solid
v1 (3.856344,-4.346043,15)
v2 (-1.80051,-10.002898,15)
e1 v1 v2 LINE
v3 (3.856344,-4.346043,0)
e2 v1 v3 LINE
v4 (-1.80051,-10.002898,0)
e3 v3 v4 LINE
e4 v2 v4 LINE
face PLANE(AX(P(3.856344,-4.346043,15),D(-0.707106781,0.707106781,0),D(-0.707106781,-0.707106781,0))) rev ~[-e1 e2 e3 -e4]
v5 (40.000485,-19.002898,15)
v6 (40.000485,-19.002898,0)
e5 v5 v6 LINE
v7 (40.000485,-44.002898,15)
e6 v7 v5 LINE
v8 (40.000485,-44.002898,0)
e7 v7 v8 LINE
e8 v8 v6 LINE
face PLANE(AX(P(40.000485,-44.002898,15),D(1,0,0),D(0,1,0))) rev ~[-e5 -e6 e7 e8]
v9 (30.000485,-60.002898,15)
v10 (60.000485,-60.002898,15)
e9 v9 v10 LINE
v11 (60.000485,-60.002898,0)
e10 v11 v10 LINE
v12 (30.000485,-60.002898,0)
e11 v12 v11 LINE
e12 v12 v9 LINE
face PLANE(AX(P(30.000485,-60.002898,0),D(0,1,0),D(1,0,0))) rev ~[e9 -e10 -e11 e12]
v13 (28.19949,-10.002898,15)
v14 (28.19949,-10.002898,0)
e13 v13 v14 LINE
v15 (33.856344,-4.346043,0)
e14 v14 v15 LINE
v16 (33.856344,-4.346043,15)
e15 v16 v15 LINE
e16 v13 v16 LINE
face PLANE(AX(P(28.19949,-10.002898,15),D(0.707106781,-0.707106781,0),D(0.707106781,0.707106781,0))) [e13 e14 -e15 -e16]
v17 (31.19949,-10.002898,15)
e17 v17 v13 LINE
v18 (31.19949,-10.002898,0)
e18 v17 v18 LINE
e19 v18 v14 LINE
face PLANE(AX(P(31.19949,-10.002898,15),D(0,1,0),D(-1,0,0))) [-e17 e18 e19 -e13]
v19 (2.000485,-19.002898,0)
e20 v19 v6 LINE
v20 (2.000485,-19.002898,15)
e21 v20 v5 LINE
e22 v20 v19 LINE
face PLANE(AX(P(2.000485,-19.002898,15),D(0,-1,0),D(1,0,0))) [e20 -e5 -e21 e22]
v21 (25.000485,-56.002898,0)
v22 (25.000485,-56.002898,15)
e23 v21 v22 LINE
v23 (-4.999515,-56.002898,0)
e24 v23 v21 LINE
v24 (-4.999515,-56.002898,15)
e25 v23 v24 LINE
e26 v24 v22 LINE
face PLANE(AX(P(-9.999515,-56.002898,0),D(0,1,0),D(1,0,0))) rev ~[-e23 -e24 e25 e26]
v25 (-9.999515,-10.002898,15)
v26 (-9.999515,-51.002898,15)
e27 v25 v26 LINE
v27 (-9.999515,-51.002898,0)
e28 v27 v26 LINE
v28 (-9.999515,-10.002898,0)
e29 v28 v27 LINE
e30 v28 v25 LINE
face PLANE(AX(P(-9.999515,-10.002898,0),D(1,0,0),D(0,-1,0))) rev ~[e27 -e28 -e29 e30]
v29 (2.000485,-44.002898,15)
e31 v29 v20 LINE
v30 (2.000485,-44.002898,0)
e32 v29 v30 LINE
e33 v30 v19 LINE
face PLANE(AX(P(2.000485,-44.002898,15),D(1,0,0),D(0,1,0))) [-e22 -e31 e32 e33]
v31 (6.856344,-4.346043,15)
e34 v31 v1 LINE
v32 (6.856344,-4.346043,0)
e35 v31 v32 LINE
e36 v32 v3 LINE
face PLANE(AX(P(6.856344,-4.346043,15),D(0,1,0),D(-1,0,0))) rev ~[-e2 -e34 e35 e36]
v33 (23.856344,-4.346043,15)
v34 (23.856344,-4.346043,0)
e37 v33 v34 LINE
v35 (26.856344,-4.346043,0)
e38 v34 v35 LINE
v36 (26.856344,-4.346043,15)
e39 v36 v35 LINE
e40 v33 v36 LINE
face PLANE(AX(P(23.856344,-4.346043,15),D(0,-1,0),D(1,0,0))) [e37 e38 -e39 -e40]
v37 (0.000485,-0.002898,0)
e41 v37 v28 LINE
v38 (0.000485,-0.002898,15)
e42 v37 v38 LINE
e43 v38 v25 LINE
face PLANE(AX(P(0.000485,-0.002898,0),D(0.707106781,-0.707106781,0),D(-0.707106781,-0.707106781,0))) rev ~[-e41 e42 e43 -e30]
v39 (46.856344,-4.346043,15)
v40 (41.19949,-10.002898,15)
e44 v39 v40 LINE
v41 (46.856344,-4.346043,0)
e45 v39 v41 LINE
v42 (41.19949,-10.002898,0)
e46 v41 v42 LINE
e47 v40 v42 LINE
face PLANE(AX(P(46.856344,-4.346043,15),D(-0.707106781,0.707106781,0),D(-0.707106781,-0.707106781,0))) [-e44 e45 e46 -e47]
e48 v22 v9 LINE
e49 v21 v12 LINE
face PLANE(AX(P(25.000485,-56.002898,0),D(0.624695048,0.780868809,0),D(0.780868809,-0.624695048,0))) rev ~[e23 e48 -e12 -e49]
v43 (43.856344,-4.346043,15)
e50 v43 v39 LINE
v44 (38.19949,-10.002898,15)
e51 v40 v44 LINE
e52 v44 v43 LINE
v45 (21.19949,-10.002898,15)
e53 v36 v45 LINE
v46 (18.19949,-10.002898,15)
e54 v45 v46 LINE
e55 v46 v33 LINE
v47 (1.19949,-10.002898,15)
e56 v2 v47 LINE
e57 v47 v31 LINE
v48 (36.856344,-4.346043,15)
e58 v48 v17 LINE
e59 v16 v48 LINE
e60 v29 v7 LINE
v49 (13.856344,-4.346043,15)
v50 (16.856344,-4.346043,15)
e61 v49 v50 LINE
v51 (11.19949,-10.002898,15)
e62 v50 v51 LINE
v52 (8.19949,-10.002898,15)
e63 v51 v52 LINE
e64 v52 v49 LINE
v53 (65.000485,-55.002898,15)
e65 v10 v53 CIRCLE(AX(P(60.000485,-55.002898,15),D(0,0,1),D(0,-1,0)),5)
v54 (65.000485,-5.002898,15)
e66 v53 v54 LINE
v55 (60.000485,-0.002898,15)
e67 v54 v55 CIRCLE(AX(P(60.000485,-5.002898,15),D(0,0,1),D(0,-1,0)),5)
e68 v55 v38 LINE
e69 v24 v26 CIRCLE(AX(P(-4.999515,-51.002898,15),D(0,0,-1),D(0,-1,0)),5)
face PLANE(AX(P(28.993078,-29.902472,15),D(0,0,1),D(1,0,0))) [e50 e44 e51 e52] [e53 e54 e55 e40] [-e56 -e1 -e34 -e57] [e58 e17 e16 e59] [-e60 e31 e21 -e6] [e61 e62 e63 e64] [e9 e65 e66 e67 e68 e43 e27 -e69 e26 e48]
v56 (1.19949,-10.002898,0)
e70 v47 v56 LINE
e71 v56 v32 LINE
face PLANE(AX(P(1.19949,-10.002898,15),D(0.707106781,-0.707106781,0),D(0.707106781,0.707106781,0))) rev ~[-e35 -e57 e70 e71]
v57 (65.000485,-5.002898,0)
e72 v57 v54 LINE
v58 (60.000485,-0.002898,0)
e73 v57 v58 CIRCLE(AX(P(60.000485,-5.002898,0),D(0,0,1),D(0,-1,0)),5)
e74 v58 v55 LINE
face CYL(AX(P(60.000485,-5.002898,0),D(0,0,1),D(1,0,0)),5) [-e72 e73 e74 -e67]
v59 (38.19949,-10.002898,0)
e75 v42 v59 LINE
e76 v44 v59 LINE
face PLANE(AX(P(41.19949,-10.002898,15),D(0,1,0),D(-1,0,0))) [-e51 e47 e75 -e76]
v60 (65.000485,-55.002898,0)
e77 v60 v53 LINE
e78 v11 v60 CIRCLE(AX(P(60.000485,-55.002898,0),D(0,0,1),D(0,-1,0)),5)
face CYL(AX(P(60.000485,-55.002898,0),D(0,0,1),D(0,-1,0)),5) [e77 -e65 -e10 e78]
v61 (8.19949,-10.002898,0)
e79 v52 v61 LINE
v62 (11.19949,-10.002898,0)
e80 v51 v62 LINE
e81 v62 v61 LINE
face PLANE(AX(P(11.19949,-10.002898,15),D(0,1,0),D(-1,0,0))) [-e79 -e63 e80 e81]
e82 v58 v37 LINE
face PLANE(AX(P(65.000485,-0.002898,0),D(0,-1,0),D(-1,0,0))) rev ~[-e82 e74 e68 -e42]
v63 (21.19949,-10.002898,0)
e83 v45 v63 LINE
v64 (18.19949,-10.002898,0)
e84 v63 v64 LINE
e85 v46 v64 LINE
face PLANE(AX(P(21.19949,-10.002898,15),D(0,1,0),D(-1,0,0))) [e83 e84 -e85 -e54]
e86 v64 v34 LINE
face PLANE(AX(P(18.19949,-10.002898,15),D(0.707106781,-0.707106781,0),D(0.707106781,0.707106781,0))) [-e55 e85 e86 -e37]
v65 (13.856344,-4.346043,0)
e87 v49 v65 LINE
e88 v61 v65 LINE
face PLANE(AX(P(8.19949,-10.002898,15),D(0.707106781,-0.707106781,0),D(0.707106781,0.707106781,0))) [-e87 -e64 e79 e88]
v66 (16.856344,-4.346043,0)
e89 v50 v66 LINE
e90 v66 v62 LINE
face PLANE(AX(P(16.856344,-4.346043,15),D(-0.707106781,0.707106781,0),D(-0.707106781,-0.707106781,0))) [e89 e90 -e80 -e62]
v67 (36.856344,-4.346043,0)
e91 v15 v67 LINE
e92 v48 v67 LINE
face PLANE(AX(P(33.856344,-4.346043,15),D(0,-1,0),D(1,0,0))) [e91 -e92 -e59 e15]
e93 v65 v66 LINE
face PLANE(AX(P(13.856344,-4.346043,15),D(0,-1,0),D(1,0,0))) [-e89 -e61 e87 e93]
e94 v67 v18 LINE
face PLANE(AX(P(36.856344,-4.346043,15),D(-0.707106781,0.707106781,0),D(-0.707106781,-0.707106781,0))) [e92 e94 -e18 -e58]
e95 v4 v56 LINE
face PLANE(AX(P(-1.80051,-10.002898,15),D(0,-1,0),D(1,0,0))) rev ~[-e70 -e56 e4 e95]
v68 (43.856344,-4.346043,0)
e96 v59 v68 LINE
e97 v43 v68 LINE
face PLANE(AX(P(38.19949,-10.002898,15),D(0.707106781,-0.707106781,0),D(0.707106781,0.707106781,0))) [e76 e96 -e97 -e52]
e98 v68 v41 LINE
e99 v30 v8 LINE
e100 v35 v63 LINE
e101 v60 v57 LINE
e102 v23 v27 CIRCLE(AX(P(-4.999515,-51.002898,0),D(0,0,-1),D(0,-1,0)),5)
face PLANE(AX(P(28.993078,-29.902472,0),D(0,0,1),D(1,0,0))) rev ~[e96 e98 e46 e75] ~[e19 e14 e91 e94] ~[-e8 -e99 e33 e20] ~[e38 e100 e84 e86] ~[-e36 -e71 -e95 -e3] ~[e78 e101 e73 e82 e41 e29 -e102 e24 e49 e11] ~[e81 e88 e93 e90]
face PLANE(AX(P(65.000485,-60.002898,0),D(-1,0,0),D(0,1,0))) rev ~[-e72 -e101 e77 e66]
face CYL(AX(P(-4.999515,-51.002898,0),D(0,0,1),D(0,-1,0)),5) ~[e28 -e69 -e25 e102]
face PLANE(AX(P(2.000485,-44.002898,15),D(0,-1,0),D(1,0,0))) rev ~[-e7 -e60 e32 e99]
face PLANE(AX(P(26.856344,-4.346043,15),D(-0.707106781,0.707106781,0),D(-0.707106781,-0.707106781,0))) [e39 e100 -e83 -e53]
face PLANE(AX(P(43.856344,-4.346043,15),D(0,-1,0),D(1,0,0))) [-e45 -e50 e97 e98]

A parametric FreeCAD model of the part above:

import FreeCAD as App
import Part
import Sketcher

V = App.Vector
Q = App.Units.Quantity


def edges_at(feature, points):
    """Names of the edges that pass closest to the given points."""
    edges = feature.Shape.Edges
    near = lambda p: min(range(len(edges)), key=lambda i: edges[i].distToShape(Part.Vertex(*p))[0])
    return sorted({f"Edge{near(p) + 1}" for p in points})


def add_polygon(sketch, points):
    """Adds a closed chain of lines whose ends are joined by coincident constraints."""
    first, n = sketch.GeometryCount, len(points)
    for a, b in zip(points, points[1:] + points[:1]):
        sketch.addGeometry(Part.LineSegment(App.Vector(*a, 0), App.Vector(*b, 0)), False)
    for i in range(n):
        sketch.addConstraint(Sketcher.Constraint("Coincident", first + i, 2, first + (i + 1) % n, 1))

doc = App.newDocument("Part")
body = doc.addObject("PartDesign::Body", "Body")

sketch1 = body.newObject("Sketcher::SketchObject", "Sketch")
sketch1.AttachmentSupport = (doc.getObject("XY_Plane"), [""])
sketch1.MapMode = "FlatFace"
add_polygon(sketch1, [(-9.999515, -56.002898), (25.000485, -56.002898), (30.000485, -60.002898), (65.000485, -60.002898), (65.000485, -0.002898), (0.000485, -0.002898), (-9.999515, -10.002898)])
sketch1.addConstraint(Sketcher.Constraint("Horizontal", 0))
sketch1.addConstraint(Sketcher.Constraint("Horizontal", 2))
sketch1.addConstraint(Sketcher.Constraint("Vertical", 3))
sketch1.addConstraint(Sketcher.Constraint("Horizontal", 4))
sketch1.addConstraint(Sketcher.Constraint("Vertical", 6))
sketch1.addConstraint(Sketcher.Constraint("Equal", 0, 2))
sketch1.addConstraint(Sketcher.Constraint("DistanceX", 0, 1, 0, 2, 35.0))
sketch1.addConstraint(Sketcher.Constraint("DistanceX", 4, 2, 4, 1, 65.0))
sketch1.addConstraint(Sketcher.Constraint("DistanceY", 3, 1, 3, 2, 60.0))
sketch1.addConstraint(Sketcher.Constraint("DistanceY", 6, 2, 6, 1, 46.0))
sketch1.addConstraint(Sketcher.Constraint("Angle", 5, Q("-135 deg")))
sketch1.addConstraint(Sketcher.Constraint("DistanceX", 0, 2, 1, 2, 5.0))
sketch1.addConstraint(Sketcher.Constraint("DistanceX", -1, 1, 0, 2, 25.000485))
sketch1.addConstraint(Sketcher.Constraint("DistanceY", 0, 2, -1, 1, 56.002898))
pad1 = body.newObject("PartDesign::Pad", "Pad")
pad1.Profile = sketch1
pad1.Length = 15
doc.recompute()

fillet = body.newObject("PartDesign::Fillet", "Fillet")
fillet.Base = (pad1, edges_at(pad1, [(-10, -56.003, 7.5), (65, -0.003, 7.5), (65, -60.003, 7.5)]))
fillet.Radius = 5

sketch2 = body.newObject("Sketcher::SketchObject", "Sketch001")
sketch2.AttachmentSupport = (doc.getObject("XY_Plane"), [""])
sketch2.MapMode = "FlatFace"
sketch2.AttachmentOffset = App.Placement(V(0, 0, 15), App.Rotation())
add_polygon(sketch2, [(3.856344, -4.346043), (-1.80051, -10.002898), (1.19949, -10.002898), (6.856344, -4.346043)])
add_polygon(sketch2, [(11.19949, -10.002898), (16.856344, -4.346043), (13.856344, -4.346043), (8.19949, -10.002898)])
add_polygon(sketch2, [(21.19949, -10.002898), (26.856344, -4.346043), (23.856344, -4.346043), (18.19949, -10.002898)])
add_polygon(sketch2, [(31.19949, -10.002898), (36.856344, -4.346043), (33.856344, -4.346043), (28.19949, -10.002898)])
add_polygon(sketch2, [(41.19949, -10.002898), (46.856344, -4.346043), (43.856344, -4.346043), (38.19949, -10.002898)])
sketch2.addConstraint(Sketcher.Constraint("Horizontal", 1))
sketch2.addConstraint(Sketcher.Constraint("Horizontal", 3))
sketch2.addConstraint(Sketcher.Constraint("Horizontal", 5))
sketch2.addConstraint(Sketcher.Constraint("Horizontal", 7))
sketch2.addConstraint(Sketcher.Constraint("Horizontal", 9))
sketch2.addConstraint(Sketcher.Constraint("Horizontal", 11))
sketch2.addConstraint(Sketcher.Constraint("Horizontal", 13))
sketch2.addConstraint(Sketcher.Constraint("Horizontal", 15))
sketch2.addConstraint(Sketcher.Constraint("Horizontal", 17))
sketch2.addConstraint(Sketcher.Constraint("Horizontal", 19))
sketch2.addConstraint(Sketcher.Constraint("Parallel", 0, 2))
sketch2.addConstraint(Sketcher.Constraint("Parallel", 2, 4))
sketch2.addConstraint(Sketcher.Constraint("Parallel", 4, 6))
sketch2.addConstraint(Sketcher.Constraint("Parallel", 6, 8))
sketch2.addConstraint(Sketcher.Constraint("Parallel", 8, 10))
sketch2.addConstraint(Sketcher.Constraint("Parallel", 10, 12))
sketch2.addConstraint(Sketcher.Constraint("Parallel", 12, 14))
sketch2.addConstraint(Sketcher.Constraint("Parallel", 14, 16))
sketch2.addConstraint(Sketcher.Constraint("Parallel", 16, 18))
sketch2.addConstraint(Sketcher.Constraint("Horizontal", 3, 2, 4, 2))
sketch2.addConstraint(Sketcher.Constraint("Horizontal", 1, 2, 6, 2))
sketch2.addConstraint(Sketcher.Constraint("Horizontal", 5, 2, 8, 2))
sketch2.addConstraint(Sketcher.Constraint("Horizontal", 7, 2, 10, 2))
sketch2.addConstraint(Sketcher.Constraint("Horizontal", 9, 2, 12, 2))
sketch2.addConstraint(Sketcher.Constraint("Horizontal", 11, 2, 14, 2))
sketch2.addConstraint(Sketcher.Constraint("Horizontal", 13, 2, 16, 2))
sketch2.addConstraint(Sketcher.Constraint("Horizontal", 15, 2, 18, 2))
sketch2.addConstraint(Sketcher.Constraint("Equal", 3, 5))
sketch2.addConstraint(Sketcher.Constraint("Equal", 7, 9))
sketch2.addConstraint(Sketcher.Constraint("Equal", 11, 13))
sketch2.addConstraint(Sketcher.Constraint("Equal", 15, 17))
sketch2.addConstraint(Sketcher.Constraint("DistanceX", 1, 1, 1, 2, 3.0))
sketch2.addConstraint(Sketcher.Constraint("Angle", 0, Q("-135 deg")))
sketch2.addConstraint(Sketcher.Constraint("Distance", 0, 8.0))
sketch2.addConstraint(Sketcher.Constraint("DistanceX", 2, 2, 4, 2, 10.0))
sketch2.addConstraint(Sketcher.Constraint("DistanceX", 4, 2, 8, 2, 10.0))
sketch2.addConstraint(Sketcher.Constraint("DistanceX", 8, 2, 12, 2, 10.0))
sketch2.addConstraint(Sketcher.Constraint("DistanceX", 12, 2, 16, 2, 10.0))
sketch2.addConstraint(Sketcher.Constraint("DistanceX", 0, 2, -1, 1, 1.80051))
sketch2.addConstraint(Sketcher.Constraint("DistanceY", 0, 2, -1, 1, 10.002898))
pocket1 = body.newObject("PartDesign::Pocket", "Pocket")
pocket1.Profile = sketch2
pocket1.Type = "ThroughAll"

sketch3 = body.newObject("Sketcher::SketchObject", "Sketch002")
sketch3.AttachmentSupport = (doc.getObject("XY_Plane"), [""])
sketch3.MapMode = "FlatFace"
sketch3.AttachmentOffset = App.Placement(V(0, 0, 15), App.Rotation())
add_polygon(sketch3, [(2.000485, -19.002898), (2.000485, -44.002898), (40.000485, -44.002898), (40.000485, -19.002898)])
sketch3.addConstraint(Sketcher.Constraint("Vertical", 0))
sketch3.addConstraint(Sketcher.Constraint("Horizontal", 1))
sketch3.addConstraint(Sketcher.Constraint("Vertical", 2))
sketch3.addConstraint(Sketcher.Constraint("Horizontal", 3))
sketch3.addConstraint(Sketcher.Constraint("DistanceX", 1, 1, 1, 2, 38.0))
sketch3.addConstraint(Sketcher.Constraint("DistanceY", 0, 2, 0, 1, 25.0))
sketch3.addConstraint(Sketcher.Constraint("DistanceX", -1, 1, 0, 2, 2.000485))
sketch3.addConstraint(Sketcher.Constraint("DistanceY", 0, 2, -1, 1, 44.002898))
pocket2 = body.newObject("PartDesign::Pocket", "Pocket001")
pocket2.Profile = sketch3
pocket2.Type = "ThroughAll"

doc.recompute()
